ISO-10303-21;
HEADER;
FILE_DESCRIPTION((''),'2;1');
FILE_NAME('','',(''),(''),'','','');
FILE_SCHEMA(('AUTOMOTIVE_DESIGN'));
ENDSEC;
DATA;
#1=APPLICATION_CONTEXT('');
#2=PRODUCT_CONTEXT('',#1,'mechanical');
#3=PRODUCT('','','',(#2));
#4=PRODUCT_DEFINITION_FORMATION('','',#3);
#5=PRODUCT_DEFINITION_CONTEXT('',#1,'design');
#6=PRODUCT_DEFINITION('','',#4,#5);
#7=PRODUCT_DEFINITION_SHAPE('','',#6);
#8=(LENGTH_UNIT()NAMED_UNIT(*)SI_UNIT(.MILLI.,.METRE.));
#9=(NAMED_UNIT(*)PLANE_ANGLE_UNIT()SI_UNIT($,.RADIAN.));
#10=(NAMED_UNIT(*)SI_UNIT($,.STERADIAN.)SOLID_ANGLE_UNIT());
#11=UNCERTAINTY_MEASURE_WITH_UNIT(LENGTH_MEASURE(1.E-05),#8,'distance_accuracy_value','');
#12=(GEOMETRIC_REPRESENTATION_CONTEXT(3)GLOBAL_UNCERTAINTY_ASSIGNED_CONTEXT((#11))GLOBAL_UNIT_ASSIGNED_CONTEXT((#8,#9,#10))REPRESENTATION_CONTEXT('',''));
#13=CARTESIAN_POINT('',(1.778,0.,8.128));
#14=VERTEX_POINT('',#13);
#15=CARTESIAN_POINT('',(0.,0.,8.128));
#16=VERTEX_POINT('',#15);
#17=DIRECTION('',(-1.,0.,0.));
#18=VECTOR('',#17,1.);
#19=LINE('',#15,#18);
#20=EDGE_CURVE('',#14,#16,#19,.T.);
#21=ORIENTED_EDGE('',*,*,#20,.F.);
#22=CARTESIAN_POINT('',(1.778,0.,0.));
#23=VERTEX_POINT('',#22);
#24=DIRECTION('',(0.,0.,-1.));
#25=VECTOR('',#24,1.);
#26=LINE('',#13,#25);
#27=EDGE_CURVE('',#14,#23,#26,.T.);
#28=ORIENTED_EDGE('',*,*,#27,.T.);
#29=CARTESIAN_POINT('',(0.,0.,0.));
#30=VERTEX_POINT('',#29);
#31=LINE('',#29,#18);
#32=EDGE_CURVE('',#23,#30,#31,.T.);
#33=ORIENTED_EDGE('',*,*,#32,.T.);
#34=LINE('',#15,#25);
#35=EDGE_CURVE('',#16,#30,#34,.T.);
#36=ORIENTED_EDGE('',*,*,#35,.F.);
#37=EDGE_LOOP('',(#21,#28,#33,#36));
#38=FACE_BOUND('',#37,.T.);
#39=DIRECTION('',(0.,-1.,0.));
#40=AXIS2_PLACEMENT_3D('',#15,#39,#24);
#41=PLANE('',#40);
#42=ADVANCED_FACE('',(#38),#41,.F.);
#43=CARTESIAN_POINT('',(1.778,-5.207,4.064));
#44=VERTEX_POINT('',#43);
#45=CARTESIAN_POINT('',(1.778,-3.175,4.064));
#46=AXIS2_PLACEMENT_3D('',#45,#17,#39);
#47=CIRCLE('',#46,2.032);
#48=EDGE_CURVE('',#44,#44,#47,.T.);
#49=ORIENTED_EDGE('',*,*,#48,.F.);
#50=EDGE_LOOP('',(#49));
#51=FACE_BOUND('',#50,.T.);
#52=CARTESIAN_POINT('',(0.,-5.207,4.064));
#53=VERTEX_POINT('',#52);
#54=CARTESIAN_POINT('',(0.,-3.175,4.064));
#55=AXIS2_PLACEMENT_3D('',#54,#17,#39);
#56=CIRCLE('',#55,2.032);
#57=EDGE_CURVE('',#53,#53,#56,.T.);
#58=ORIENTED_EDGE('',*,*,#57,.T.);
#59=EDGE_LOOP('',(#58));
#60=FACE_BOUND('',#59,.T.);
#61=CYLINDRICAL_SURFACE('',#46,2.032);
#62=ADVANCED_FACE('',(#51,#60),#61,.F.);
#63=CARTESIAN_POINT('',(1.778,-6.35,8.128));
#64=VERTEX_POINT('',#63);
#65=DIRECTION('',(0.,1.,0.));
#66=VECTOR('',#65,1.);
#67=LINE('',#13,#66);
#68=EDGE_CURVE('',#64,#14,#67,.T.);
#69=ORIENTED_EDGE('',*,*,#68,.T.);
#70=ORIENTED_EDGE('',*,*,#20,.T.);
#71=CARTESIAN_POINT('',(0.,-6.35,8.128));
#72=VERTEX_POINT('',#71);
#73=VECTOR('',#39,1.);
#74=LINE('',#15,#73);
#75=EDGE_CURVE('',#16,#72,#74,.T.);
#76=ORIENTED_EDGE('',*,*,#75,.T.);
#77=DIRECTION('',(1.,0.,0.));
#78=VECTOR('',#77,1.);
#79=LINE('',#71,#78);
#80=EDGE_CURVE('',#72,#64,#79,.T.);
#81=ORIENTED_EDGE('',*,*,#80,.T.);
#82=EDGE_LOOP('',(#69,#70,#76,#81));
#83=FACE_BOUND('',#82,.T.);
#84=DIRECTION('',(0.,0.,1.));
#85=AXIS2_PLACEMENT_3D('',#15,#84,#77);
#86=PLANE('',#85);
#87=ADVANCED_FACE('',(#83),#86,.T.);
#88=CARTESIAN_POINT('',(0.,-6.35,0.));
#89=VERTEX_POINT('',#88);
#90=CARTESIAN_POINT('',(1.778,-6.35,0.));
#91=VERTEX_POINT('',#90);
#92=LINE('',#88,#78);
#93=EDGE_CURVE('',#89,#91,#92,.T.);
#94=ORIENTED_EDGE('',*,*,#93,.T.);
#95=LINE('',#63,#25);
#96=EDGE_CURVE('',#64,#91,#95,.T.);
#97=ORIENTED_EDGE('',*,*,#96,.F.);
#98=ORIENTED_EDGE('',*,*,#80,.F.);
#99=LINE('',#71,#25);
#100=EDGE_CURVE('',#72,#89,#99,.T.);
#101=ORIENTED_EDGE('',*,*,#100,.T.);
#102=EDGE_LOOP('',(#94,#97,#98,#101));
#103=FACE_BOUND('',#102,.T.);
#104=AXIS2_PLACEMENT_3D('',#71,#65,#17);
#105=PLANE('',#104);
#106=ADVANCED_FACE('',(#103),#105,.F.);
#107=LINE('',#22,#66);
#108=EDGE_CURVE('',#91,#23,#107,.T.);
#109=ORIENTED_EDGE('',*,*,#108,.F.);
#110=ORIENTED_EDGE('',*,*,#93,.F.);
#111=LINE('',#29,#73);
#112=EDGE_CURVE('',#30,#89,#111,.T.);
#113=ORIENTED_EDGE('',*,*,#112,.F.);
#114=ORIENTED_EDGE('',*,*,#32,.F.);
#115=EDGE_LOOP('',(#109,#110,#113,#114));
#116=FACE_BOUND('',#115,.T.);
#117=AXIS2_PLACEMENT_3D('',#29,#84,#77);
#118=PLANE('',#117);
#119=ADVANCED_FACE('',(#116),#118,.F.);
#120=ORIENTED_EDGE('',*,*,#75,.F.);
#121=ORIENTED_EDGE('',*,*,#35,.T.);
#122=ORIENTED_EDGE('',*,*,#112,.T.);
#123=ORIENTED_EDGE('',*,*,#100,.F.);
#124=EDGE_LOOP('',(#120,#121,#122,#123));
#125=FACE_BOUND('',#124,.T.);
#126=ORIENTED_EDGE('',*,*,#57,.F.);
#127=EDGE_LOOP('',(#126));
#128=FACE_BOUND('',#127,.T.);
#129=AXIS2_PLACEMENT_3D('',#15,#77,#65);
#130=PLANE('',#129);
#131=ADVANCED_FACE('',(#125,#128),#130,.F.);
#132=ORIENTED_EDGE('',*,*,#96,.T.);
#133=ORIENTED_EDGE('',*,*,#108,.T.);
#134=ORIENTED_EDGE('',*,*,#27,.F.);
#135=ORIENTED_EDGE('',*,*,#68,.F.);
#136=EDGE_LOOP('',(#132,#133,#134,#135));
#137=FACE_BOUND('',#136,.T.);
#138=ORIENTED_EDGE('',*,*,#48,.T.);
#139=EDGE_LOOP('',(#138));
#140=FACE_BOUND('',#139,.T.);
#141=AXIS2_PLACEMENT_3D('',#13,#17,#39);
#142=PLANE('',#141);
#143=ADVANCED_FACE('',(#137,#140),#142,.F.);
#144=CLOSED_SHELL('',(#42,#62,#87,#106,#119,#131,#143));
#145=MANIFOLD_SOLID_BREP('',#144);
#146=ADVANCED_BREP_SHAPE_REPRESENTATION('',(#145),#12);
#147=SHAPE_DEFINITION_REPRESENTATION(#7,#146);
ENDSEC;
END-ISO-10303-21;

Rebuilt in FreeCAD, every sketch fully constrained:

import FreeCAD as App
import Part
import Sketcher

V = App.Vector
Q = App.Units.Quantity

doc = App.newDocument("Part")
body = doc.addObject("PartDesign::Body", "Body")

sketch1 = doc.addObject("Sketcher::SketchObject", "Sketch")
body.addObject(sketch1)
sketch1.AttachmentSupport = (doc.XY_Plane, [""])
sketch1.MapMode = "FlatFace"
sketch1.addGeometry([
    Part.LineSegment(V(0, 0, 0), V(0, -6.3, 0)),
    Part.LineSegment(V(0, -6.3, 0), V(1.8, -6.3, 0)),
    Part.LineSegment(V(1.8, -6.3, 0), V(1.8, 0, 0)),
    Part.LineSegment(V(1.8, 0, 0), V(0, 0, 0)),
], False)
sketch1.addConstraint([
    Sketcher.Constraint("Coincident", 0, 2, 1, 1),
    Sketcher.Constraint("Coincident", 1, 2, 2, 1),
    Sketcher.Constraint("Coincident", 2, 2, 3, 1),
    Sketcher.Constraint("Coincident", 3, 2, 0, 1),
    Sketcher.Constraint("Vertical", 0),
    Sketcher.Constraint("Horizontal", 1),
    Sketcher.Constraint("Vertical", 2),
    Sketcher.Constraint("Horizontal", 3),
    Sketcher.Constraint("Coincident", 3, 2, -1, 1),
    Sketcher.Constraint("DistanceX", 1, 1, 1, 2, Q("0.07 in")),
    Sketcher.Constraint("DistanceY", 0, 2, 0, 1, Q("0.25 in")),
])
pad1 = doc.addObject("PartDesign::Pad", "Pad")
body.addObject(pad1)
pad1.Profile = sketch1
pad1.Length = Q("0.32 in")

sketch2 = doc.addObject("Sketcher::SketchObject", "Sketch001")
body.addObject(sketch2)
sketch2.AttachmentSupport = (doc.YZ_Plane, [""])
sketch2.MapMode = "FlatFace"
sketch2.addGeometry(Part.Circle(V(-3.2, 4.1, 0), V(0, 0, 1), 2), False)
sketch2.addConstraint([
    Sketcher.Constraint("Diameter", 0, Q("0.16 in")),
    Sketcher.Constraint("DistanceY", -1, 1, 0, 3, Q("0.16 in")),
    Sketcher.Constraint("DistanceX", 0, 3, -1, 1, Q("0.125 in")),
])
pocket1 = doc.addObject("PartDesign::Pocket", "Pocket")
body.addObject(pocket1)
pocket1.Profile = sketch2
pocket1.Type = "ThroughAll"
pocket1.Reversed = True

doc.recompute()
